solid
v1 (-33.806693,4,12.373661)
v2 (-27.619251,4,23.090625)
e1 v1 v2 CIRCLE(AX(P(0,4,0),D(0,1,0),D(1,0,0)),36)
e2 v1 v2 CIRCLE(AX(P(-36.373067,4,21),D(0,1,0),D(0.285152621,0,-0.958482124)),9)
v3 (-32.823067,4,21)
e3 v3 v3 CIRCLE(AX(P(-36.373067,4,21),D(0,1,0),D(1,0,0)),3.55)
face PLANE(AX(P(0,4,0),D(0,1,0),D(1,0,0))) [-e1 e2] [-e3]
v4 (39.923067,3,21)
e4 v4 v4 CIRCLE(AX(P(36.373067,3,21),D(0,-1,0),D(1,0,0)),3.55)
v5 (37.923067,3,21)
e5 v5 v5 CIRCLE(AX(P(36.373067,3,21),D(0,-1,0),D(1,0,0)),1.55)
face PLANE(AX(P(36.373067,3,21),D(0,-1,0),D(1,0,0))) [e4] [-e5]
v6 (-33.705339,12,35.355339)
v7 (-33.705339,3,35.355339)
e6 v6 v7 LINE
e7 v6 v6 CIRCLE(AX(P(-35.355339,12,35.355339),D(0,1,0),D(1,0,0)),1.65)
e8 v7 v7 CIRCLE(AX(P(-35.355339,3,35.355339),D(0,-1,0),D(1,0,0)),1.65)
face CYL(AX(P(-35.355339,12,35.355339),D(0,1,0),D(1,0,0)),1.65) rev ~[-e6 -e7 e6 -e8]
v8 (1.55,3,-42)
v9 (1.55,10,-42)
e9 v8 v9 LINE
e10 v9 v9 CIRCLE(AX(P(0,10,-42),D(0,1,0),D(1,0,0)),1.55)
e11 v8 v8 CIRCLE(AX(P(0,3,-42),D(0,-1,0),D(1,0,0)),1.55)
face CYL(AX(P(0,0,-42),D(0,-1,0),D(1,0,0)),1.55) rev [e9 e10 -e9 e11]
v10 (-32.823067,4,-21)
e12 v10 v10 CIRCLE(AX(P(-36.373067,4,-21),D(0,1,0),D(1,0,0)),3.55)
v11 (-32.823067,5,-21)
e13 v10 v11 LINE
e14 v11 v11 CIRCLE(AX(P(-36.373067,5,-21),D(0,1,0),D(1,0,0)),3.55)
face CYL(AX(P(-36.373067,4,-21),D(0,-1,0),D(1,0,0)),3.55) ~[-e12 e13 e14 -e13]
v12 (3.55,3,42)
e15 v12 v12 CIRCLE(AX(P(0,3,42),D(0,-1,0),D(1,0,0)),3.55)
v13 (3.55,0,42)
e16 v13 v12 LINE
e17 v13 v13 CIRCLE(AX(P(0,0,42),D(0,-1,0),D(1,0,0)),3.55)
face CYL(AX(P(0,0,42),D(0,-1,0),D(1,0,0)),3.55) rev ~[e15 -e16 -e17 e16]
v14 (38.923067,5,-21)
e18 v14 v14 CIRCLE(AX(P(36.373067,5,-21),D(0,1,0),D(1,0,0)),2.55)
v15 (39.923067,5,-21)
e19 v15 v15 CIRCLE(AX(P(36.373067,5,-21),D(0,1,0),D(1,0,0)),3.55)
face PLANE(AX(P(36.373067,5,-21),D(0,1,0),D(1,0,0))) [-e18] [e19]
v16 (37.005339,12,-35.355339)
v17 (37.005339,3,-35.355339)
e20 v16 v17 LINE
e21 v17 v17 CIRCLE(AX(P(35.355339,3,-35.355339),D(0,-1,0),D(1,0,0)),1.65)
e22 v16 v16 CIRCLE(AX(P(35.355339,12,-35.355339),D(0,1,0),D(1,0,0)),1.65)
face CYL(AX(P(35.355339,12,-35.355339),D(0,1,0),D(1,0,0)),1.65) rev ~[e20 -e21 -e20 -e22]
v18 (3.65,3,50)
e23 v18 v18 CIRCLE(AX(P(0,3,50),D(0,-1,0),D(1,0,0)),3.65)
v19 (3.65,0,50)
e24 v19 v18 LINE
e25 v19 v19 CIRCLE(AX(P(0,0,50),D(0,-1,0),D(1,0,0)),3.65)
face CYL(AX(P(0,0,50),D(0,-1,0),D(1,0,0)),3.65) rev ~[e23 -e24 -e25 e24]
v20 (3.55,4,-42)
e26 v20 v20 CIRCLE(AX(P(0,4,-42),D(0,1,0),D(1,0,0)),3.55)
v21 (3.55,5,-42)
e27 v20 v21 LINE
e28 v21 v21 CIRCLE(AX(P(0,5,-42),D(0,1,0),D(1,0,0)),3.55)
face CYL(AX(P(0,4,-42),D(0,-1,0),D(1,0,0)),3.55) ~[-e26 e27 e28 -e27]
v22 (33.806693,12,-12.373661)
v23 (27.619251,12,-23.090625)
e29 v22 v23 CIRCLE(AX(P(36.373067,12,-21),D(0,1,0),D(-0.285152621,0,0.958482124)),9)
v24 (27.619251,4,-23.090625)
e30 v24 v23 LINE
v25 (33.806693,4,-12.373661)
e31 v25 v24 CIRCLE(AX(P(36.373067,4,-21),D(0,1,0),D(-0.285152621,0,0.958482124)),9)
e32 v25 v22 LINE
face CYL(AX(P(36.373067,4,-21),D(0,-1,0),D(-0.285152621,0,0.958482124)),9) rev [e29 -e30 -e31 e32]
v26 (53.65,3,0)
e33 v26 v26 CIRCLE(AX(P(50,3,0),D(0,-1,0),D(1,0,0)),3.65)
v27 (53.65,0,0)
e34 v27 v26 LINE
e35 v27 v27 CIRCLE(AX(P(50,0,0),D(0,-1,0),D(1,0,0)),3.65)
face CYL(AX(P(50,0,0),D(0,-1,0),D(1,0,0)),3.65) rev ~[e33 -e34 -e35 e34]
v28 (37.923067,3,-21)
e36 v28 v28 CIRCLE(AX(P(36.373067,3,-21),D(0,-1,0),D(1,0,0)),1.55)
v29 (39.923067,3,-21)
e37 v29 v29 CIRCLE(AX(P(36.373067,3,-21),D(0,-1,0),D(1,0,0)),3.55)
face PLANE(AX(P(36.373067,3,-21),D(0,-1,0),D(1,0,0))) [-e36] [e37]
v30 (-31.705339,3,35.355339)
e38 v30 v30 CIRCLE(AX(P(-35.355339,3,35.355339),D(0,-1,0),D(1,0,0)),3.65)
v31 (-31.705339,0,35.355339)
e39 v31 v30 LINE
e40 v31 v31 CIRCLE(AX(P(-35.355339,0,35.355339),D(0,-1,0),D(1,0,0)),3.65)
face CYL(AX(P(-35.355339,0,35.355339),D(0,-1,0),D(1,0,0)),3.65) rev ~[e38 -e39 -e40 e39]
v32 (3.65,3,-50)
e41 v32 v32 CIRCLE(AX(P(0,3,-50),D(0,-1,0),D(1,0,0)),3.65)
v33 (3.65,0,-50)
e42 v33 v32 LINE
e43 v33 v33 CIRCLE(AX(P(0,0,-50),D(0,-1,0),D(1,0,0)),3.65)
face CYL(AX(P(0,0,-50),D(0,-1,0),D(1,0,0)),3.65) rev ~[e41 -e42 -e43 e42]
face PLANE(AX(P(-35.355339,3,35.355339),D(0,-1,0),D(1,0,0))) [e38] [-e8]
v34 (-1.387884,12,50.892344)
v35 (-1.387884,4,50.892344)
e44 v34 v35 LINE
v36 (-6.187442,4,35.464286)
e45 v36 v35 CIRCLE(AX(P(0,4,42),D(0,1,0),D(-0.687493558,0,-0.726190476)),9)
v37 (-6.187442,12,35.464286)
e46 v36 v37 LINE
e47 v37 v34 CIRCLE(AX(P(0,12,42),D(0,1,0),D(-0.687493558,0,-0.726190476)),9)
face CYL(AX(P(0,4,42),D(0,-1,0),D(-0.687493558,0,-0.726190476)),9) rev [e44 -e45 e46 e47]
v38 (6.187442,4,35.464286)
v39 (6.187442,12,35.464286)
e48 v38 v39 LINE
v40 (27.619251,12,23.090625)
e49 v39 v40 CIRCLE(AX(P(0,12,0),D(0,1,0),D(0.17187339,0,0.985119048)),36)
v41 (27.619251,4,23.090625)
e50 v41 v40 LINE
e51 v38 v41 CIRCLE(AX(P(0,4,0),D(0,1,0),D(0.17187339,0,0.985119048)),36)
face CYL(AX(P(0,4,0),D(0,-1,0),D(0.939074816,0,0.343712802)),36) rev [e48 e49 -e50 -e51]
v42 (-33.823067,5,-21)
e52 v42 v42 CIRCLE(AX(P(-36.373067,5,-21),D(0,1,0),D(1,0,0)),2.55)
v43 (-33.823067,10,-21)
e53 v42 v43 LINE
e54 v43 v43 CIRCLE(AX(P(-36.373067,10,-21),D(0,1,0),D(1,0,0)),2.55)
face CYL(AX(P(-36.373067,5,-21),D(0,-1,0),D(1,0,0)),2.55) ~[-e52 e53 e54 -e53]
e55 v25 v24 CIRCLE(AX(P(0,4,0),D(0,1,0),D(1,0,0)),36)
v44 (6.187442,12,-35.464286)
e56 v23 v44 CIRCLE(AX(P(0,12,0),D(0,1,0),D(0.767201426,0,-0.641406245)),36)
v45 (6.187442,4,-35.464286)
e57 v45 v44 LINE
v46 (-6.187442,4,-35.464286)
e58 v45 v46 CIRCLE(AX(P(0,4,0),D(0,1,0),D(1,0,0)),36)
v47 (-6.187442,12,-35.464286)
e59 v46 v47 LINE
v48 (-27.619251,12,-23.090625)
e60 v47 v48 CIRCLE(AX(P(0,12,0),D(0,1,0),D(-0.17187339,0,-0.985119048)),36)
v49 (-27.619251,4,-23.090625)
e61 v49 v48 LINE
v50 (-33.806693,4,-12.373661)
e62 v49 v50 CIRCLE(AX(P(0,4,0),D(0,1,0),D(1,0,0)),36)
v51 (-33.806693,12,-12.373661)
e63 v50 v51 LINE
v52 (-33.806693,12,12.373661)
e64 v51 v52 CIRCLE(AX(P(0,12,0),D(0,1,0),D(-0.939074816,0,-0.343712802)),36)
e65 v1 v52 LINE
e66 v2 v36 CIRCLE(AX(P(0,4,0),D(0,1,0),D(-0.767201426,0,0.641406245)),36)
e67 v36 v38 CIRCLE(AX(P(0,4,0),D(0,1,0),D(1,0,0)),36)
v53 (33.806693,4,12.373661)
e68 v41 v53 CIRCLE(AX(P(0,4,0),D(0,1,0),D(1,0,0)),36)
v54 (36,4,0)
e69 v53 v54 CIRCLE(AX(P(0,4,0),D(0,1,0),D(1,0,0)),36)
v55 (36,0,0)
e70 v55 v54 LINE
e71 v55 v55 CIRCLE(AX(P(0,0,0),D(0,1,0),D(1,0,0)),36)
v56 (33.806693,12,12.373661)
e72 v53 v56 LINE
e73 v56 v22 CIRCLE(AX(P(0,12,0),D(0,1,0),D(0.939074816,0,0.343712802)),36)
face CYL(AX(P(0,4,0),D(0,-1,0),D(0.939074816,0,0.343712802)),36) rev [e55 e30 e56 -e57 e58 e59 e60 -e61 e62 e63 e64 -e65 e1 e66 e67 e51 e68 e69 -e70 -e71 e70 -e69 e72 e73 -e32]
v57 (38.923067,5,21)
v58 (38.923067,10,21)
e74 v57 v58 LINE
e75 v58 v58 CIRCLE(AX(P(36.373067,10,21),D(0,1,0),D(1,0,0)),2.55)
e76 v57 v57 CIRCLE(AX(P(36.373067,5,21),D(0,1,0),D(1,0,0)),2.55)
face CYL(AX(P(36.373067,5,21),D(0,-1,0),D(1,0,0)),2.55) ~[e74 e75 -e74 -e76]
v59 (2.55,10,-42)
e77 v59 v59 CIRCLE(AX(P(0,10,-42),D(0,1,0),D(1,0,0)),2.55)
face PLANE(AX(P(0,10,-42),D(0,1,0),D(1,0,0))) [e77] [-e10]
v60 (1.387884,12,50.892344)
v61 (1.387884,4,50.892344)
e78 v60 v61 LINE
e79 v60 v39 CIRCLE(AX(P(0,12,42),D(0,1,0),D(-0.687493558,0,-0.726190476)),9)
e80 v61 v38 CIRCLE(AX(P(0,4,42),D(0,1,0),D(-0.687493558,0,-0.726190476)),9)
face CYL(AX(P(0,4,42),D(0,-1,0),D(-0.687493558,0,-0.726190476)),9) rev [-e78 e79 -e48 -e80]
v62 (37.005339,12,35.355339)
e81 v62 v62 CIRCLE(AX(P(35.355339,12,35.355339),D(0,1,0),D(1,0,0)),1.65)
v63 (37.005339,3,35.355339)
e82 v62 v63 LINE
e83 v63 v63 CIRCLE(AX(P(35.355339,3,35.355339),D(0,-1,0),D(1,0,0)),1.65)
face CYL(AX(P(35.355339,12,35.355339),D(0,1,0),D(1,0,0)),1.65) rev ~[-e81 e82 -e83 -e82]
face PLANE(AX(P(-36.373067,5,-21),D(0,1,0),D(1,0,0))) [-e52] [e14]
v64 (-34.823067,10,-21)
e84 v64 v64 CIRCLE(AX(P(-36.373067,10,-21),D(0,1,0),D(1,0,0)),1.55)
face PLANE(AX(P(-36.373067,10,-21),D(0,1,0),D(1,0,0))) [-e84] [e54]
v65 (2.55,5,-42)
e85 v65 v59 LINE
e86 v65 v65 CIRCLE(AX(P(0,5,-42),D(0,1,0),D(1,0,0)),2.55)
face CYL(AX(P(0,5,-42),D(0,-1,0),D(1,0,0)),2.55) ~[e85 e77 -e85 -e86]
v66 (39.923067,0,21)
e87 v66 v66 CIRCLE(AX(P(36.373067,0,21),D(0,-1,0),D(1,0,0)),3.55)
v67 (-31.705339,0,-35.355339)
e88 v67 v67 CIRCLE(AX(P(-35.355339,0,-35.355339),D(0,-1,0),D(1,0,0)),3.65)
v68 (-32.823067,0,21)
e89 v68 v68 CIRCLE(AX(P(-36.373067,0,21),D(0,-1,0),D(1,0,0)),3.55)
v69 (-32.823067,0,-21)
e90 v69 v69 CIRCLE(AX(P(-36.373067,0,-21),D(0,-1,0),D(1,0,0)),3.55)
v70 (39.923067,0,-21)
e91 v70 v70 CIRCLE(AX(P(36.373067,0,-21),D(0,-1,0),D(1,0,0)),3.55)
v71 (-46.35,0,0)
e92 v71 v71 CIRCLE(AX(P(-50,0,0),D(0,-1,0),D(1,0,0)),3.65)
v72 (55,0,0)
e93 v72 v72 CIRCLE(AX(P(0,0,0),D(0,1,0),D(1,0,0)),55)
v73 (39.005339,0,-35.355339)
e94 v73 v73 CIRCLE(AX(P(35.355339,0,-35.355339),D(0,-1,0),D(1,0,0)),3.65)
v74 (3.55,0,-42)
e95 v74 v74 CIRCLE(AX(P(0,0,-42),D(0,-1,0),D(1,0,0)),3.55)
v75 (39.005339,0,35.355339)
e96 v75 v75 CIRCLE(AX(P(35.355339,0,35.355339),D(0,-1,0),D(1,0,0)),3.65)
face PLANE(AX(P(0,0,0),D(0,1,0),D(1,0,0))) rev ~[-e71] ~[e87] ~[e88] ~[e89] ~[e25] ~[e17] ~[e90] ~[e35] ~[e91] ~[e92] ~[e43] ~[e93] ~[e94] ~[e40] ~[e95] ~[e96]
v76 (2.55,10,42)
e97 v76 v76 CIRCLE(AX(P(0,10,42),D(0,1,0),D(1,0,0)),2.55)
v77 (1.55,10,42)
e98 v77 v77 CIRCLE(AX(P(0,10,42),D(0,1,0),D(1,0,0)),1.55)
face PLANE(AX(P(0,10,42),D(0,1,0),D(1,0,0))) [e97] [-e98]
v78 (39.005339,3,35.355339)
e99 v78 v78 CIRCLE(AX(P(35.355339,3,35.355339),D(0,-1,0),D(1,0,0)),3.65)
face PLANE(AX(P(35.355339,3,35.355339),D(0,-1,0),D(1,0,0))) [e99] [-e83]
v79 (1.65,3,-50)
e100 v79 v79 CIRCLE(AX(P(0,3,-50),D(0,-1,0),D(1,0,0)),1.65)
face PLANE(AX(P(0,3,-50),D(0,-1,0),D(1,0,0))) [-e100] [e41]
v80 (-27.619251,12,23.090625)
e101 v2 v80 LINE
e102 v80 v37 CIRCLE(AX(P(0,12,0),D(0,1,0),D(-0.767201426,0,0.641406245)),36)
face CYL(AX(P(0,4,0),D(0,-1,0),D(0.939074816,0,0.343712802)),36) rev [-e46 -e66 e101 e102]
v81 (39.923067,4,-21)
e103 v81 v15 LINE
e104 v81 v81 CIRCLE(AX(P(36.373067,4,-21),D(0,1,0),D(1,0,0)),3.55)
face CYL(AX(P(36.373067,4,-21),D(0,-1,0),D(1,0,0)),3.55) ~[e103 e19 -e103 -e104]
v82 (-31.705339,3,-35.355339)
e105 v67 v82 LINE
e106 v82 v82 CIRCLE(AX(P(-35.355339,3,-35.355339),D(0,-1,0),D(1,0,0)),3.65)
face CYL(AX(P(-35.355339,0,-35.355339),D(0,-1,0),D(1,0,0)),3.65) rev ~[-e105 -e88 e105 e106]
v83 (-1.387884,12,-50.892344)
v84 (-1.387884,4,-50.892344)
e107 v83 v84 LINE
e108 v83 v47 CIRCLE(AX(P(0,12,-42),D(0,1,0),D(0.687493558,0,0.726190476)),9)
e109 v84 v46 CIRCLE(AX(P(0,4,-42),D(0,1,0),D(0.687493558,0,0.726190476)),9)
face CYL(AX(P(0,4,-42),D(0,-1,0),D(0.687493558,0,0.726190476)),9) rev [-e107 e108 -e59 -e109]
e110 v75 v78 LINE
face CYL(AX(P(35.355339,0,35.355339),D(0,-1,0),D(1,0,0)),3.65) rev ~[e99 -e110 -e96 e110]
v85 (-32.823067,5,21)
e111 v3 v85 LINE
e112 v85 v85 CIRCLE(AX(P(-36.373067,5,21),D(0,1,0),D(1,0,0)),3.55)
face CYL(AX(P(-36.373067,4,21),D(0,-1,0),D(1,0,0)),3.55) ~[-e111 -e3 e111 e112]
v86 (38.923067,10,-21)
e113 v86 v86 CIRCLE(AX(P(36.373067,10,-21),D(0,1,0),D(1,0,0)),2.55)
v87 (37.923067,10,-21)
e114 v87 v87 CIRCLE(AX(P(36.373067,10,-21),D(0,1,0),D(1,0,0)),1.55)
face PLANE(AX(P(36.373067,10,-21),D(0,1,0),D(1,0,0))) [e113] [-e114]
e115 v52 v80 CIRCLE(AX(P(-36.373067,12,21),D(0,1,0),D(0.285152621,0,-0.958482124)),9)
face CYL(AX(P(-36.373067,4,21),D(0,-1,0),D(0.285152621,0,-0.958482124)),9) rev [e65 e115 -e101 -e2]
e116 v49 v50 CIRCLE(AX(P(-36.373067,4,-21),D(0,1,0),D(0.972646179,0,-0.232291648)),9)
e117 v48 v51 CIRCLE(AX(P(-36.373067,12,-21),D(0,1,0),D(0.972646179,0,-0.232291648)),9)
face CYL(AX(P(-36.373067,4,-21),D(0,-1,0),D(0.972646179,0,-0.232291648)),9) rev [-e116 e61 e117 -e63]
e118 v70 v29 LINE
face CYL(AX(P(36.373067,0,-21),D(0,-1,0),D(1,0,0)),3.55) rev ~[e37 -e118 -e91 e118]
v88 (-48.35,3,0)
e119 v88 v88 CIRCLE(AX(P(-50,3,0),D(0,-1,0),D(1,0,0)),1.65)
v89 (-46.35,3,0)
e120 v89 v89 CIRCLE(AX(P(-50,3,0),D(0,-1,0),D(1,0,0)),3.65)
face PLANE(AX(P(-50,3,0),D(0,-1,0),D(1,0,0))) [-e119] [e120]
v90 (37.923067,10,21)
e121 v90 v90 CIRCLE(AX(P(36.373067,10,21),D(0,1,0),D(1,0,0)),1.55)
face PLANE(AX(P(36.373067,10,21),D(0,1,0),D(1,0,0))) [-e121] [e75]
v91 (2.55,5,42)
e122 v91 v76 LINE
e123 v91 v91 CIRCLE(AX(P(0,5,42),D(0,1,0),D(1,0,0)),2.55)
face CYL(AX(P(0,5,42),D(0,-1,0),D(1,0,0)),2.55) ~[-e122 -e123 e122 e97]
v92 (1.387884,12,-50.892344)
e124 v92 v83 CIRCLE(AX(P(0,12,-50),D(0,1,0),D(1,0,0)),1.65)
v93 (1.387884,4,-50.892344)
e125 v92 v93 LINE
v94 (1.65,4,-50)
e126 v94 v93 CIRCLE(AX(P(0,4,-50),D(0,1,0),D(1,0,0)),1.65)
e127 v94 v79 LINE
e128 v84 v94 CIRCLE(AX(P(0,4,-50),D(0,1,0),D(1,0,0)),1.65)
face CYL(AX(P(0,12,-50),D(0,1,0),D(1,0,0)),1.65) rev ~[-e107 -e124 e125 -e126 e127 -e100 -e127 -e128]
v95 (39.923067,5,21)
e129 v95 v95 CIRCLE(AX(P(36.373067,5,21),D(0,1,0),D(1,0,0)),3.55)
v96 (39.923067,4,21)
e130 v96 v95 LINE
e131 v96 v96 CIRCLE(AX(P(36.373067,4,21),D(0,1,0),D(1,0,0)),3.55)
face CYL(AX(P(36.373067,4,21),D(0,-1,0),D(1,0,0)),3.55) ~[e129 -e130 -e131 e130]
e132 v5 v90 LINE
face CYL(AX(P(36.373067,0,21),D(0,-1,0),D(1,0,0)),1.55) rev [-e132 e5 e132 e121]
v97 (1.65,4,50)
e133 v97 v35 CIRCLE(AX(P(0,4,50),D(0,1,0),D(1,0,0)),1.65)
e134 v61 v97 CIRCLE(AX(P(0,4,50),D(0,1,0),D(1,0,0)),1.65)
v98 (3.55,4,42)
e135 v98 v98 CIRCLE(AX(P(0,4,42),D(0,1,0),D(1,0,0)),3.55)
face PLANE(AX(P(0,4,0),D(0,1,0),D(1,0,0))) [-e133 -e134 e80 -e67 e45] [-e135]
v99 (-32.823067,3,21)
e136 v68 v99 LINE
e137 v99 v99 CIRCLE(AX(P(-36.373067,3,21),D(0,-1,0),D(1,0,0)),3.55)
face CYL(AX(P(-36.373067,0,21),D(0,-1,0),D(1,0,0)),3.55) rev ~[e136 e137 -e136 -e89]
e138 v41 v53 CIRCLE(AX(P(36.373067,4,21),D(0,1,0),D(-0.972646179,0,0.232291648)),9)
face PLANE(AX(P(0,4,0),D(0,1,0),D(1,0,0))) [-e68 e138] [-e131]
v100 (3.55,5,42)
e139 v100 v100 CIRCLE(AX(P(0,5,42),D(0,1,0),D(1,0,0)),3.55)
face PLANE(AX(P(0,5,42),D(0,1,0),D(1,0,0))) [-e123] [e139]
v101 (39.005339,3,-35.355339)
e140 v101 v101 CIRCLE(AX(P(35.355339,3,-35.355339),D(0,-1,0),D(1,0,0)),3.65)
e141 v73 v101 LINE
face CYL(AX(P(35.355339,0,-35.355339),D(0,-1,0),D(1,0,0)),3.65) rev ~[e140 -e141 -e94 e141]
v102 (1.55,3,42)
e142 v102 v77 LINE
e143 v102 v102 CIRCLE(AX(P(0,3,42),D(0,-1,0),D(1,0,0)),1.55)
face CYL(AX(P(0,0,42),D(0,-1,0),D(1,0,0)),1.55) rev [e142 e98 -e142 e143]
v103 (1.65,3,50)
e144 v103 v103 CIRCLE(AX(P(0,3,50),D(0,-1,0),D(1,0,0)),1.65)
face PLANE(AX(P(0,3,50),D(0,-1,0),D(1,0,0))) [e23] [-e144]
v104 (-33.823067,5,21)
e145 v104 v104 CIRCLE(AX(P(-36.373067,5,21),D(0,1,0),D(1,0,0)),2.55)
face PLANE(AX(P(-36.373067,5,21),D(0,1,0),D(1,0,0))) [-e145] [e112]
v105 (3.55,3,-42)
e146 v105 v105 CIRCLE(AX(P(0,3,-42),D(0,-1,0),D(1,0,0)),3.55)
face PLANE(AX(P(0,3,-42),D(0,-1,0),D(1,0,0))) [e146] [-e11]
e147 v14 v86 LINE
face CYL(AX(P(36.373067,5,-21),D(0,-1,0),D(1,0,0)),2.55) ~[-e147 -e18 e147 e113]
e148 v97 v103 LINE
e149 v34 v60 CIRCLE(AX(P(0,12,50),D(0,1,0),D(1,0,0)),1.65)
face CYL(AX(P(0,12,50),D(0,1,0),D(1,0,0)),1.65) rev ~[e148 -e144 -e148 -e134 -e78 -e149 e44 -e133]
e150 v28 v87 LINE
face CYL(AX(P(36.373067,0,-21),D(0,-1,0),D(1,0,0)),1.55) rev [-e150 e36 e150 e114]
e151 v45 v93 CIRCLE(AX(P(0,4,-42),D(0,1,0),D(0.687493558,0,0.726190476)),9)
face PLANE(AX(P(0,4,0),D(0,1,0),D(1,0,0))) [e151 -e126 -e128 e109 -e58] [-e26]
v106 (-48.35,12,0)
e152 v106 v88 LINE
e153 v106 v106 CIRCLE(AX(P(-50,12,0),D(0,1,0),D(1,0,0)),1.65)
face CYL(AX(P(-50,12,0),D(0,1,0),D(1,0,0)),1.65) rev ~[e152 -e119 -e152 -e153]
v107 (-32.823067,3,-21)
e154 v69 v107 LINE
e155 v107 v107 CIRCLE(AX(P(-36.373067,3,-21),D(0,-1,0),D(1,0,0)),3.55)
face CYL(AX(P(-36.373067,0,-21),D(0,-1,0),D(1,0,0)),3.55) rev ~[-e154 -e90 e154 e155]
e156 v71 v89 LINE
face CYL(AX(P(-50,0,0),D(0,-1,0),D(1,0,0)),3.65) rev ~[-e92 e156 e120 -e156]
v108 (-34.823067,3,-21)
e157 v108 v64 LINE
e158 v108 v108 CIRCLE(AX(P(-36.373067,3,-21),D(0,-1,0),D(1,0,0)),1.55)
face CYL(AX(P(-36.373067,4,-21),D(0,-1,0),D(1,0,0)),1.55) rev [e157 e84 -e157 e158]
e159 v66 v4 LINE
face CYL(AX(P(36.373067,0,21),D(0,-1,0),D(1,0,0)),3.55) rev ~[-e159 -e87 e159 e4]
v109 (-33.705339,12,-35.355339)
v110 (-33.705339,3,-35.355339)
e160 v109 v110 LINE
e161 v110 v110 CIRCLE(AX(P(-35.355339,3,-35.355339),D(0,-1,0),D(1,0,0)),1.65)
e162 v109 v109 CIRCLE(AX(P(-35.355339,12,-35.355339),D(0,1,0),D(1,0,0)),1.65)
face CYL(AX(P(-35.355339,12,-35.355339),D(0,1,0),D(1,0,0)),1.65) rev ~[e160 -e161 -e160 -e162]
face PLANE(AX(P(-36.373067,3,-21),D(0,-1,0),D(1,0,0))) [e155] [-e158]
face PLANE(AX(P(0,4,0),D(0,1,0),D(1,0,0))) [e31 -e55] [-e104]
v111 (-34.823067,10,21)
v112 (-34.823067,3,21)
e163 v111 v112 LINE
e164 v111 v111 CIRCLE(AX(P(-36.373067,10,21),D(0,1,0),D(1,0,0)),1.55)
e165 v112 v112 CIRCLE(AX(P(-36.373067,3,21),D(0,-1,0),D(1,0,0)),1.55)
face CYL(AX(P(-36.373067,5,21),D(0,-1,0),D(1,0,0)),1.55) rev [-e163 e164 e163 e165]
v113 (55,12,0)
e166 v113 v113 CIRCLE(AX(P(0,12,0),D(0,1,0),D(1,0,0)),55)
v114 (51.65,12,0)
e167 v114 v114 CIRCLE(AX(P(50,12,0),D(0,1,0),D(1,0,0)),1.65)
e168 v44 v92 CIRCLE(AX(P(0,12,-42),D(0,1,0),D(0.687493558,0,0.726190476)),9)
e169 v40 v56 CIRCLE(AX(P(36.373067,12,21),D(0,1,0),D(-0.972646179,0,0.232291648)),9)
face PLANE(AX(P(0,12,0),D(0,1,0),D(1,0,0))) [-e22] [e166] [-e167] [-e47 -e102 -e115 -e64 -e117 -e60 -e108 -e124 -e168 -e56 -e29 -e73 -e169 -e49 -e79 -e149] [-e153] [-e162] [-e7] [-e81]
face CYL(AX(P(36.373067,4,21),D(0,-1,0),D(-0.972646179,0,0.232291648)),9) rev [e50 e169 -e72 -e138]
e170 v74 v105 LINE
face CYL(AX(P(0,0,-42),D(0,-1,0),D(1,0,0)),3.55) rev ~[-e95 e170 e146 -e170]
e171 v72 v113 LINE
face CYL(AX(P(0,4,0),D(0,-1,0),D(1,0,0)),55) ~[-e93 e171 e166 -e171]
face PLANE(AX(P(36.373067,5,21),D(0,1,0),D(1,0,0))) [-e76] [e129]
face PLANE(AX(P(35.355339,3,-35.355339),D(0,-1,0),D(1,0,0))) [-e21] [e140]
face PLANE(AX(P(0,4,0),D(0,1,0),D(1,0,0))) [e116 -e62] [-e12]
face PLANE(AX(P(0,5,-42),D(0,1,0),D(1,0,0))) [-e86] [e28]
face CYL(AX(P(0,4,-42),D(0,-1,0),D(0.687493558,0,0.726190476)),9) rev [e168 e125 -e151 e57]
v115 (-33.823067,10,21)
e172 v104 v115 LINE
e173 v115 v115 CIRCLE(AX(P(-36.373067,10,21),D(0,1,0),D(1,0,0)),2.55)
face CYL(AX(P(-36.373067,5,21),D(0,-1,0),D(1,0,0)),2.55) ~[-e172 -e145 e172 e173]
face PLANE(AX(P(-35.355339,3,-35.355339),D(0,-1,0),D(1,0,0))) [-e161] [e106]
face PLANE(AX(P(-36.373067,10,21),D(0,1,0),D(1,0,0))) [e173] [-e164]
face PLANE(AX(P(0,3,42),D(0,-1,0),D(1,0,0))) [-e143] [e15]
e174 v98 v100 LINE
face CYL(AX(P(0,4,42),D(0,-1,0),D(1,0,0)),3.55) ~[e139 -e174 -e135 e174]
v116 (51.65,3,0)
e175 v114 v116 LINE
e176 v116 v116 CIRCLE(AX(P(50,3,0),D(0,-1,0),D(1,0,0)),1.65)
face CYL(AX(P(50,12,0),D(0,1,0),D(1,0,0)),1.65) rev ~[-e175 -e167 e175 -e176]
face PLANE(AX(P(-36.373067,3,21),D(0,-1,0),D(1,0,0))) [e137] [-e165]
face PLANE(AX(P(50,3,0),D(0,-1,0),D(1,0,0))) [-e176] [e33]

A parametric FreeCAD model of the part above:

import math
import FreeCAD as App
import Part
import Sketcher
from FreeCAD import Vector
Q = App.Units.Quantity

doc = App.newDocument("Part")
body = doc.addObject("PartDesign::Body", "Body")

sketch1 = body.newObject("Sketcher::SketchObject", "Sketch")
sketch1.AttachmentSupport = (doc.getObject("XZ_Plane"), [""])
sketch1.MapMode = "FlatFace"
sketch1.addGeometry(Part.Circle(Vector(0, 0, 0), Vector(0, 0, 1), 55), False)
sketch1.addGeometry(Part.Circle(Vector(-36.373067, 21, 0), Vector(0, 0, 1), 1.55), False)
sketch1.addGeometry(Part.Circle(Vector(0, 42, 0), Vector(0, 0, 1), 1.55), False)
sketch1.addGeometry(Part.Circle(Vector(36.373067, 21, 0), Vector(0, 0, 1), 1.55), False)
sketch1.addGeometry(Part.Circle(Vector(-36.373067, -21, 0), Vector(0, 0, 1), 1.55), False)
sketch1.addGeometry(Part.Circle(Vector(0, 0, 0), Vector(0, 0, 1), 36), False)
sketch1.addGeometry(Part.Circle(Vector(36.373067, -21, 0), Vector(0, 0, 1), 1.55), False)
sketch1.addGeometry(Part.Circle(Vector(0, -42, 0), Vector(0, 0, 1), 1.55), False)
sketch1.addConstraint(Sketcher.Constraint("Coincident", 0, 3, -1, 1))
sketch1.addConstraint(Sketcher.Constraint("Coincident", 5, 3, -1, 1))
sketch1.addConstraint(Sketcher.Constraint("Equal", 1, 2))
sketch1.addConstraint(Sketcher.Constraint("Equal", 2, 3))
sketch1.addConstraint(Sketcher.Constraint("Equal", 3, 4))
sketch1.addConstraint(Sketcher.Constraint("Equal", 4, 6))
sketch1.addConstraint(Sketcher.Constraint("Equal", 6, 7))
sketch1.addConstraint(Sketcher.Constraint("Symmetric", 3, 3, 4, 3, -1, 1))
sketch1.addConstraint(Sketcher.Constraint("Symmetric", 1, 3, 6, 3, -1, 1))
sketch1.addConstraint(Sketcher.Constraint("Symmetric", 2, 3, 7, 3, -1, 1))
sketch1.addConstraint(Sketcher.Constraint("Symmetric", 1, 3, 3, 3, -2))
sketch1.addConstraint(Sketcher.Constraint("PointOnObject", 2, 3, -2))
sketch1.addConstraint(Sketcher.Constraint("Diameter", 0, Q("110 mm")))
sketch1.addConstraint(Sketcher.Constraint("Diameter", 5, Q("72 mm")))
sketch1.addConstraint(Sketcher.Constraint("Diameter", 1, Q("3.1 mm")))
sketch1.addConstraint(Sketcher.Constraint("DistanceY", -1, 1, 1, 3, Q("21 mm")))
sketch1.addConstraint(Sketcher.Constraint("DistanceY", -1, 1, 2, 3, Q("42 mm")))
sketch1.addConstraint(Sketcher.Constraint("DistanceX", 1, 3, -1, 1, Q("36.373067 mm")))
pad1 = body.newObject("PartDesign::Pad", "Pad")
pad1.Profile = sketch1
pad1.Length = 4
pad1.Reversed = True

sketch2 = body.newObject("Sketcher::SketchObject", "Sketch001")
sketch2.AttachmentSupport = (doc.getObject("XZ_Plane"), [""])
sketch2.MapMode = "FlatFace"
sketch2.AttachmentOffset = App.Placement(Vector(0, 0, -4), App.Rotation())
sketch2.addGeometry(Part.Circle(Vector(-36.373067, -21, 0), Vector(0, 0, 1), 3.55), False)
sketch2.addGeometry(Part.Circle(Vector(-36.373067, -21, 0), Vector(0, 0, 1), 1.55), False)
sketch2.addGeometry(Part.Circle(Vector(0, 42, 0), Vector(0, 0, 1), 3.55), False)
sketch2.addGeometry(Part.Circle(Vector(0, 42, 0), Vector(0, 0, 1), 1.55), False)
sketch2.addGeometry(Part.Circle(Vector(36.373067, -21, 0), Vector(0, 0, 1), 3.55), False)
sketch2.addGeometry(Part.Circle(Vector(36.373067, -21, 0), Vector(0, 0, 1), 1.55), False)
sketch2.addGeometry(Part.Circle(Vector(0, -42, 0), Vector(0, 0, 1), 3.55), False)
sketch2.addGeometry(Part.Circle(Vector(0, -42, 0), Vector(0, 0, 1), 1.55), False)
sketch2.addGeometry(Part.Circle(Vector(36.373067, 21, 0), Vector(0, 0, 1), 3.55), False)
sketch2.addGeometry(Part.Circle(Vector(36.373067, 21, 0), Vector(0, 0, 1), 1.55), False)
sketch2.addGeometry(Part.Circle(Vector(-36.373067, 21, 0), Vector(0, 0, 1), 3.55), False)
sketch2.addGeometry(Part.Circle(Vector(-36.373067, 21, 0), Vector(0, 0, 1), 1.55), False)
sketch2.addConstraint(Sketcher.Constraint("Coincident", 1, 3, 0, 3))
sketch2.addConstraint(Sketcher.Constraint("Coincident", 3, 3, 2, 3))
sketch2.addConstraint(Sketcher.Constraint("Coincident", 5, 3, 4, 3))
sketch2.addConstraint(Sketcher.Constraint("Coincident", 7, 3, 6, 3))
sketch2.addConstraint(Sketcher.Constraint("Coincident", 9, 3, 8, 3))
sketch2.addConstraint(Sketcher.Constraint("Coincident", 11, 3, 10, 3))
sketch2.addConstraint(Sketcher.Constraint("Equal", 0, 2))
sketch2.addConstraint(Sketcher.Constraint("Equal", 1, 3))
sketch2.addConstraint(Sketcher.Constraint("Equal", 2, 4))
sketch2.addConstraint(Sketcher.Constraint("Equal", 3, 5))
sketch2.addConstraint(Sketcher.Constraint("Equal", 4, 6))
sketch2.addConstraint(Sketcher.Constraint("Equal", 5, 7))
sketch2.addConstraint(Sketcher.Constraint("Equal", 6, 8))
sketch2.addConstraint(Sketcher.Constraint("Equal", 7, 9))
sketch2.addConstraint(Sketcher.Constraint("Equal", 8, 10))
sketch2.addConstraint(Sketcher.Constraint("Equal", 9, 11))
sketch2.addConstraint(Sketcher.Constraint("Symmetric", 2, 3, 6, 3, -1, 1))
sketch2.addConstraint(Sketcher.Constraint("Symmetric", 0, 3, 8, 3, -1, 1))
sketch2.addConstraint(Sketcher.Constraint("Symmetric", 4, 3, 10, 3, -1, 1))
sketch2.addConstraint(Sketcher.Constraint("Symmetric", 0, 3, 4, 3, -2))
sketch2.addConstraint(Sketcher.Constraint("PointOnObject", 2, 3, -2))
sketch2.addConstraint(Sketcher.Constraint("Diameter", 0, Q("7.1 mm")))
sketch2.addConstraint(Sketcher.Constraint("Diameter", 1, Q("3.1 mm")))
sketch2.addConstraint(Sketcher.Constraint("DistanceY", 0, 3, -1, 1, Q("21 mm")))
sketch2.addConstraint(Sketcher.Constraint("DistanceY", -1, 1, 2, 3, Q("42 mm")))
sketch2.addConstraint(Sketcher.Constraint("DistanceX", 0, 3, -1, 1, Q("36.373067 mm")))
pad2 = body.newObject("PartDesign::Pad", "Pad001")
pad2.Profile = sketch2
pad2.Length = 1
pad2.Reversed = True

sketch3 = body.newObject("Sketcher::SketchObject", "Sketch002")
sketch3.AttachmentSupport = (doc.getObject("XZ_Plane"), [""])
sketch3.MapMode = "FlatFace"
sketch3.AttachmentOffset = App.Placement(Vector(0, 0, -5), App.Rotation())
sketch3.addGeometry(Part.Circle(Vector(-36.373067, 21, 0), Vector(0, 0, 1), 2.55), False)
sketch3.addGeometry(Part.Circle(Vector(-36.373067, 21, 0), Vector(0, 0, 1), 1.55), False)
sketch3.addGeometry(Part.Circle(Vector(0, 42, 0), Vector(0, 0, 1), 2.55), False)
sketch3.addGeometry(Part.Circle(Vector(0, 42, 0), Vector(0, 0, 1), 1.55), False)
sketch3.addGeometry(Part.Circle(Vector(36.373067, 21, 0), Vector(0, 0, 1), 2.55), False)
sketch3.addGeometry(Part.Circle(Vector(36.373067, 21, 0), Vector(0, 0, 1), 1.55), False)
sketch3.addGeometry(Part.Circle(Vector(36.373067, -21, 0), Vector(0, 0, 1), 2.55), False)
sketch3.addGeometry(Part.Circle(Vector(36.373067, -21, 0), Vector(0, 0, 1), 1.55), False)
sketch3.addGeometry(Part.Circle(Vector(0, -42, 0), Vector(0, 0, 1), 2.55), False)
sketch3.addGeometry(Part.Circle(Vector(0, -42, 0), Vector(0, 0, 1), 1.55), False)
sketch3.addGeometry(Part.Circle(Vector(-36.373067, -21, 0), Vector(0, 0, 1), 2.55), False)
sketch3.addGeometry(Part.Circle(Vector(-36.373067, -21, 0), Vector(0, 0, 1), 1.55), False)
sketch3.addConstraint(Sketcher.Constraint("Coincident", 1, 3, 0, 3))
sketch3.addConstraint(Sketcher.Constraint("Coincident", 3, 3, 2, 3))
sketch3.addConstraint(Sketcher.Constraint("Coincident", 5, 3, 4, 3))
sketch3.addConstraint(Sketcher.Constraint("Coincident", 7, 3, 6, 3))
sketch3.addConstraint(Sketcher.Constraint("Coincident", 9, 3, 8, 3))
sketch3.addConstraint(Sketcher.Constraint("Coincident", 11, 3, 10, 3))
sketch3.addConstraint(Sketcher.Constraint("Equal", 0, 2))
sketch3.addConstraint(Sketcher.Constraint("Equal", 1, 3))
sketch3.addConstraint(Sketcher.Constraint("Equal", 2, 4))
sketch3.addConstraint(Sketcher.Constraint("Equal", 3, 5))
sketch3.addConstraint(Sketcher.Constraint("Equal", 4, 6))
sketch3.addConstraint(Sketcher.Constraint("Equal", 5, 7))
sketch3.addConstraint(Sketcher.Constraint("Equal", 6, 8))
sketch3.addConstraint(Sketcher.Constraint("Equal", 7, 9))
sketch3.addConstraint(Sketcher.Constraint("Equal", 8, 10))
sketch3.addConstraint(Sketcher.Constraint("Equal", 9, 11))
sketch3.addConstraint(Sketcher.Constraint("Symmetric", 0, 3, 6, 3, -1, 1))
sketch3.addConstraint(Sketcher.Constraint("Symmetric", 2, 3, 8, 3, -1, 1))
sketch3.addConstraint(Sketcher.Constraint("Symmetric", 4, 3, 10, 3, -1, 1))
sketch3.addConstraint(Sketcher.Constraint("Symmetric", 0, 3, 4, 3, -2))
sketch3.addConstraint(Sketcher.Constraint("PointOnObject", 2, 3, -2))
sketch3.addConstraint(Sketcher.Constraint("Diameter", 0, Q("5.1 mm")))
sketch3.addConstraint(Sketcher.Constraint("Diameter", 1, Q("3.1 mm")))
sketch3.addConstraint(Sketcher.Constraint("DistanceY", -1, 1, 0, 3, Q("21 mm")))
sketch3.addConstraint(Sketcher.Constraint("DistanceY", -1, 1, 2, 3, Q("42 mm")))
sketch3.addConstraint(Sketcher.Constraint("DistanceX", 0, 3, -1, 1, Q("36.373067 mm")))
pad3 = body.newObject("PartDesign::Pad", "Pad002")
pad3.Profile = sketch3
pad3.Length = 5
pad3.Reversed = True

sketch4 = body.newObject("Sketcher::SketchObject", "Sketch003")
sketch4.AttachmentSupport = (doc.getObject("XZ_Plane"), [""])
sketch4.MapMode = "FlatFace"
sketch4.AttachmentOffset = App.Placement(Vector(0, 0, -4), App.Rotation())
sketch4.addGeometry(Part.Circle(Vector(0, 0, 0), Vector(0, 0, 1), 55), False)
sketch4.addGeometry(Part.ArcOfCircle(Part.Circle(Vector(0, -42, 0), Vector(0, 0, 1), 9), math.radians(133.432028), math.radians(406.567972)), False)
sketch4.addGeometry(Part.ArcOfCircle(Part.Circle(Vector(0, 0, 0), Vector(0, 0, 1), 36), math.radians(-80.10324), math.radians(-39.89676)), False)
sketch4.addGeometry(Part.ArcOfCircle(Part.Circle(Vector(36.373067, -21, 0), Vector(0, 0, 1), 9), math.radians(-166.567972), math.radians(106.567972)), False)
sketch4.addGeometry(Part.ArcOfCircle(Part.Circle(Vector(0, 0, 0), Vector(0, 0, 1), 36), math.radians(-20.10324), math.radians(20.10324)), False)
sketch4.addGeometry(Part.ArcOfCircle(Part.Circle(Vector(36.373067, 21, 0), Vector(0, 0, 1), 9), math.radians(-106.567972), math.radians(166.567972)), False)
sketch4.addGeometry(Part.ArcOfCircle(Part.Circle(Vector(0, 0, 0), Vector(0, 0, 1), 36), math.radians(39.89676), math.radians(80.10324)), False)
sketch4.addGeometry(Part.ArcOfCircle(Part.Circle(Vector(0, 42, 0), Vector(0, 0, 1), 9), math.radians(-46.567972), math.radians(226.567972)), False)
sketch4.addGeometry(Part.ArcOfCircle(Part.Circle(Vector(0, 0, 0), Vector(0, 0, 1), 36), math.radians(99.89676), math.radians(140.10324)), False)
sketch4.addGeometry(Part.ArcOfCircle(Part.Circle(Vector(-36.373067, 21, 0), Vector(0, 0, 1), 9), math.radians(13.432028), math.radians(286.567972)), False)
sketch4.addGeometry(Part.ArcOfCircle(Part.Circle(Vector(0, 0, 0), Vector(0, 0, 1), 36), math.radians(159.89676), math.radians(200.10324)), False)
sketch4.addGeometry(Part.ArcOfCircle(Part.Circle(Vector(-36.373067, -21, 0), Vector(0, 0, 1), 9), math.radians(73.432028), math.radians(346.567972)), False)
sketch4.addGeometry(Part.ArcOfCircle(Part.Circle(Vector(0, 0, 0), Vector(0, 0, 1), 36), math.radians(-140.10324), math.radians(-99.89676)), False)
sketch4.addConstraint(Sketcher.Constraint("Coincident", 1, 2, 2, 1))
sketch4.addConstraint(Sketcher.Constraint("Coincident", 2, 2, 3, 1))
sketch4.addConstraint(Sketcher.Constraint("Coincident", 3, 2, 4, 1))
sketch4.addConstraint(Sketcher.Constraint("Coincident", 4, 2, 5, 1))
sketch4.addConstraint(Sketcher.Constraint("Coincident", 5, 2, 6, 1))
sketch4.addConstraint(Sketcher.Constraint("Coincident", 6, 2, 7, 1))
sketch4.addConstraint(Sketcher.Constraint("Coincident", 7, 2, 8, 1))
sketch4.addConstraint(Sketcher.Constraint("Coincident", 8, 2, 9, 1))
sketch4.addConstraint(Sketcher.Constraint("Coincident", 9, 2, 10, 1))
sketch4.addConstraint(Sketcher.Constraint("Coincident", 10, 2, 11, 1))
sketch4.addConstraint(Sketcher.Constraint("Coincident", 11, 2, 12, 1))
sketch4.addConstraint(Sketcher.Constraint("Coincident", 12, 2, 1, 1))
sketch4.addConstraint(Sketcher.Constraint("Coincident", 0, 3, -1, 1))
sketch4.addConstraint(Sketcher.Constraint("Coincident", 2, 3, -1, 1))
sketch4.addConstraint(Sketcher.Constraint("Coincident", 4, 3, -1, 1))
sketch4.addConstraint(Sketcher.Constraint("Coincident", 6, 3, -1, 1))
sketch4.addConstraint(Sketcher.Constraint("Coincident", 8, 3, -1, 1))
sketch4.addConstraint(Sketcher.Constraint("Coincident", 10, 3, -1, 1))
sketch4.addConstraint(Sketcher.Constraint("Coincident", 12, 3, -1, 1))
sketch4.addConstraint(Sketcher.Constraint("Equal", 1, 3))
sketch4.addConstraint(Sketcher.Constraint("Equal", 2, 4))
sketch4.addConstraint(Sketcher.Constraint("Equal", 3, 5))
sketch4.addConstraint(Sketcher.Constraint("Equal", 4, 6))
sketch4.addConstraint(Sketcher.Constraint("Equal", 5, 7))
sketch4.addConstraint(Sketcher.Constraint("Equal", 6, 8))
sketch4.addConstraint(Sketcher.Constraint("Equal", 7, 9))
sketch4.addConstraint(Sketcher.Constraint("Equal", 8, 10))
sketch4.addConstraint(Sketcher.Constraint("Equal", 9, 11))
sketch4.addConstraint(Sketcher.Constraint("Equal", 10, 12))
sketch4.addConstraint(Sketcher.Constraint("Symmetric", 1, 3, 7, 3, -1, 1))
sketch4.addConstraint(Sketcher.Constraint("Symmetric", 3, 3, 9, 3, -1, 1))
sketch4.addConstraint(Sketcher.Constraint("Symmetric", 5, 3, 11, 3, -1, 1))
sketch4.addConstraint(Sketcher.Constraint("Symmetric", 5, 3, 9, 3, -2))
sketch4.addConstraint(Sketcher.Constraint("PointOnObject", 1, 3, -2))
sketch4.addConstraint(Sketcher.Constraint("Diameter", 0, Q("110 mm")))
sketch4.addConstraint(Sketcher.Constraint("Radius", 1, Q("9 mm")))
sketch4.addConstraint(Sketcher.Constraint("Radius", 2, Q("36 mm")))
sketch4.addConstraint(Sketcher.Constraint("DistanceY", 1, 3, -1, 1, Q("42 mm")))
sketch4.addConstraint(Sketcher.Constraint("DistanceY", 3, 3, -1, 1, Q("21 mm")))
sketch4.addConstraint(Sketcher.Constraint("DistanceX", -1, 1, 2, 2, Q("27.619251 mm")))
pad4 = body.newObject("PartDesign::Pad", "Pad003")
pad4.Profile = sketch4
pad4.Length = 8
pad4.Reversed = True

sketch5 = body.newObject("Sketcher::SketchObject", "Sketch004")
sketch5.AttachmentSupport = (doc.getObject("XZ_Plane"), [""])
sketch5.MapMode = "FlatFace"
sketch5.AttachmentOffset = App.Placement(Vector(0, 0, -12), App.Rotation())
sketch5.addGeometry(Part.Circle(Vector(0, -50, 0), Vector(0, 0, 1), 1.65), False)
sketch5.addGeometry(Part.Circle(Vector(35.355339, -35.355339, 0), Vector(0, 0, 1), 1.65), False)
sketch5.addGeometry(Part.Circle(Vector(50, 0, 0), Vector(0, 0, 1), 1.65), False)
sketch5.addGeometry(Part.Circle(Vector(35.355339, 35.355339, 0), Vector(0, 0, 1), 1.65), False)
sketch5.addGeometry(Part.Circle(Vector(0, 50, 0), Vector(0, 0, 1), 1.65), False)
sketch5.addGeometry(Part.Circle(Vector(-35.355339, 35.355339, 0), Vector(0, 0, 1), 1.65), False)
sketch5.addGeometry(Part.Circle(Vector(-50, 0, 0), Vector(0, 0, 1), 1.65), False)
sketch5.addGeometry(Part.Circle(Vector(-35.355339, -35.355339, 0), Vector(0, 0, 1), 1.65), False)
sketch5.addConstraint(Sketcher.Constraint("Equal", 0, 1))
sketch5.addConstraint(Sketcher.Constraint("Equal", 1, 2))
sketch5.addConstraint(Sketcher.Constraint("Equal", 2, 3))
sketch5.addConstraint(Sketcher.Constraint("Equal", 3, 4))
sketch5.addConstraint(Sketcher.Constraint("Equal", 4, 5))
sketch5.addConstraint(Sketcher.Constraint("Equal", 5, 6))
sketch5.addConstraint(Sketcher.Constraint("Equal", 6, 7))
sketch5.addConstraint(Sketcher.Constraint("Symmetric", 0, 3, 4, 3, -1, 1))
sketch5.addConstraint(Sketcher.Constraint("Symmetric", 1, 3, 5, 3, -1, 1))
sketch5.addConstraint(Sketcher.Constraint("Symmetric", 2, 3, 6, 3, -1, 1))
sketch5.addConstraint(Sketcher.Constraint("Symmetric", 3, 3, 7, 3, -1, 1))
sketch5.addConstraint(Sketcher.Constraint("Symmetric", 3, 3, 5, 3, -2))
sketch5.addConstraint(Sketcher.Constraint("PointOnObject", 0, 3, -2))
sketch5.addConstraint(Sketcher.Constraint("PointOnObject", 2, 3, -1))
sketch5.addConstraint(Sketcher.Constraint("Diameter", 0, Q("3.3 mm")))
sketch5.addConstraint(Sketcher.Constraint("DistanceY", 0, 3, -1, 1, Q("50 mm")))
sketch5.addConstraint(Sketcher.Constraint("DistanceX", -1, 1, 2, 3, Q("50 mm")))
sketch5.addConstraint(Sketcher.Constraint("DistanceX", -1, 1, 1, 3, Q("35.355339 mm")))
sketch5.addConstraint(Sketcher.Constraint("DistanceY", 1, 3, -1, 1, Q("35.355339 mm")))
pocket1 = body.newObject("PartDesign::Pocket", "Pocket")
pocket1.Profile = sketch5
pocket1.Type = "ThroughAll"
pocket1.Reversed = True

sketch6 = body.newObject("Sketcher::SketchObject", "Sketch005")
sketch6.AttachmentSupport = (doc.getObject("XZ_Plane"), [""])
sketch6.MapMode = "FlatFace"
sketch6.addGeometry(Part.Circle(Vector(-36.373067, -21, 0), Vector(0, 0, 1), 3.55), False)
sketch6.addGeometry(Part.Circle(Vector(-36.373067, -21, 0), Vector(0, 0, 1), 1.55), False)
sketch6.addGeometry(Part.Circle(Vector(-36.373067, 21, 0), Vector(0, 0, 1), 3.55), False)
sketch6.addGeometry(Part.Circle(Vector(-36.373067, 21, 0), Vector(0, 0, 1), 1.55), False)
sketch6.addGeometry(Part.Circle(Vector(0, 42, 0), Vector(0, 0, 1), 3.55), False)
sketch6.addGeometry(Part.Circle(Vector(0, 42, 0), Vector(0, 0, 1), 1.55), False)
sketch6.addGeometry(Part.Circle(Vector(36.373067, 21, 0), Vector(0, 0, 1), 3.55), False)
sketch6.addGeometry(Part.Circle(Vector(36.373067, 21, 0), Vector(0, 0, 1), 1.55), False)
sketch6.addGeometry(Part.Circle(Vector(36.373067, -21, 0), Vector(0, 0, 1), 3.55), False)
sketch6.addGeometry(Part.Circle(Vector(36.373067, -21, 0), Vector(0, 0, 1), 1.55), False)
sketch6.addGeometry(Part.Circle(Vector(0, -42, 0), Vector(0, 0, 1), 3.55), False)
sketch6.addGeometry(Part.Circle(Vector(0, -42, 0), Vector(0, 0, 1), 1.55), False)
sketch6.addGeometry(Part.Circle(Vector(-35.355339, -35.355339, 0), Vector(0, 0, 1), 3.65), False)
sketch6.addGeometry(Part.Circle(Vector(-35.355339, -35.355339, 0), Vector(0, 0, 1), 1.65), False)
sketch6.addGeometry(Part.Circle(Vector(-50, 0, 0), Vector(0, 0, 1), 3.65), False)
sketch6.addGeometry(Part.Circle(Vector(-50, 0, 0), Vector(0, 0, 1), 1.65), False)
sketch6.addGeometry(Part.Circle(Vector(-35.355339, 35.355339, 0), Vector(0, 0, 1), 3.65), False)
sketch6.addGeometry(Part.Circle(Vector(-35.355339, 35.355339, 0), Vector(0, 0, 1), 1.65), False)
sketch6.addGeometry(Part.Circle(Vector(0, 50, 0), Vector(0, 0, 1), 3.65), False)
sketch6.addGeometry(Part.Circle(Vector(0, 50, 0), Vector(0, 0, 1), 1.65), False)
sketch6.addGeometry(Part.Circle(Vector(35.355339, 35.355339, 0), Vector(0, 0, 1), 3.65), False)
sketch6.addGeometry(Part.Circle(Vector(35.355339, 35.355339, 0), Vector(0, 0, 1), 1.65), False)
sketch6.addGeometry(Part.Circle(Vector(50, 0, 0), Vector(0, 0, 1), 3.65), False)
sketch6.addGeometry(Part.Circle(Vector(50, 0, 0), Vector(0, 0, 1), 1.65), False)
sketch6.addGeometry(Part.Circle(Vector(35.355339, -35.355339, 0), Vector(0, 0, 1), 3.65), False)
sketch6.addGeometry(Part.Circle(Vector(35.355339, -35.355339, 0), Vector(0, 0, 1), 1.65), False)
sketch6.addGeometry(Part.Circle(Vector(0, -50, 0), Vector(0, 0, 1), 3.65), False)
sketch6.addGeometry(Part.Circle(Vector(0, -50, 0), Vector(0, 0, 1), 1.65), False)
sketch6.addConstraint(Sketcher.Constraint("Coincident", 1, 3, 0, 3))
sketch6.addConstraint(Sketcher.Constraint("Coincident", 3, 3, 2, 3))
sketch6.addConstraint(Sketcher.Constraint("Coincident", 5, 3, 4, 3))
sketch6.addConstraint(Sketcher.Constraint("Coincident", 7, 3, 6, 3))
sketch6.addConstraint(Sketcher.Constraint("Coincident", 9, 3, 8, 3))
sketch6.addConstraint(Sketcher.Constraint("Coincident", 11, 3, 10, 3))
sketch6.addConstraint(Sketcher.Constraint("Coincident", 13, 3, 12, 3))
sketch6.addConstraint(Sketcher.Constraint("Coincident", 15, 3, 14, 3))
sketch6.addConstraint(Sketcher.Constraint("Coincident", 17, 3, 16, 3))
sketch6.addConstraint(Sketcher.Constraint("Coincident", 19, 3, 18, 3))
sketch6.addConstraint(Sketcher.Constraint("Coincident", 21, 3, 20, 3))
sketch6.addConstraint(Sketcher.Constraint("Coincident", 23, 3, 22, 3))
sketch6.addConstraint(Sketcher.Constraint("Coincident", 25, 3, 24, 3))
sketch6.addConstraint(Sketcher.Constraint("Coincident", 27, 3, 26, 3))
sketch6.addConstraint(Sketcher.Constraint("Equal", 0, 2))
sketch6.addConstraint(Sketcher.Constraint("Equal", 1, 3))
sketch6.addConstraint(Sketcher.Constraint("Equal", 2, 4))
sketch6.addConstraint(Sketcher.Constraint("Equal", 3, 5))
sketch6.addConstraint(Sketcher.Constraint("Equal", 4, 6))
sketch6.addConstraint(Sketcher.Constraint("Equal", 5, 7))
sketch6.addConstraint(Sketcher.Constraint("Equal", 6, 8))
sketch6.addConstraint(Sketcher.Constraint("Equal", 7, 9))
sketch6.addConstraint(Sketcher.Constraint("Equal", 8, 10))
sketch6.addConstraint(Sketcher.Constraint("Equal", 9, 11))
sketch6.addConstraint(Sketcher.Constraint("Equal", 12, 14))
sketch6.addConstraint(Sketcher.Constraint("Equal", 13, 15))
sketch6.addConstraint(Sketcher.Constraint("Equal", 14, 16))
sketch6.addConstraint(Sketcher.Constraint("Equal", 15, 17))
sketch6.addConstraint(Sketcher.Constraint("Equal", 16, 18))
sketch6.addConstraint(Sketcher.Constraint("Equal", 17, 19))
sketch6.addConstraint(Sketcher.Constraint("Equal", 18, 20))
sketch6.addConstraint(Sketcher.Constraint("Equal", 19, 21))
sketch6.addConstraint(Sketcher.Constraint("Equal", 20, 22))
sketch6.addConstraint(Sketcher.Constraint("Equal", 21, 23))
sketch6.addConstraint(Sketcher.Constraint("Equal", 22, 24))
sketch6.addConstraint(Sketcher.Constraint("Equal", 23, 25))
sketch6.addConstraint(Sketcher.Constraint("Equal", 24, 26))
sketch6.addConstraint(Sketcher.Constraint("Equal", 25, 27))
sketch6.addConstraint(Sketcher.Constraint("Symmetric", 0, 3, 6, 3, -1, 1))
sketch6.addConstraint(Sketcher.Constraint("Symmetric", 2, 3, 8, 3, -1, 1))
sketch6.addConstraint(Sketcher.Constraint("Symmetric", 4, 3, 10, 3, -1, 1))
sketch6.addConstraint(Sketcher.Constraint("Symmetric", 12, 3, 20, 3, -1, 1))
sketch6.addConstraint(Sketcher.Constraint("Symmetric", 14, 3, 22, 3, -1, 1))
sketch6.addConstraint(Sketcher.Constraint("Symmetric", 16, 3, 24, 3, -1, 1))
sketch6.addConstraint(Sketcher.Constraint("Symmetric", 18, 3, 26, 3, -1, 1))
sketch6.addConstraint(Sketcher.Constraint("Symmetric", 2, 3, 6, 3, -2))
sketch6.addConstraint(Sketcher.Constraint("Symmetric", 16, 3, 20, 3, -2))
sketch6.addConstraint(Sketcher.Constraint("PointOnObject", 4, 3, -2))
sketch6.addConstraint(Sketcher.Constraint("PointOnObject", 14, 3, -1))
sketch6.addConstraint(Sketcher.Constraint("PointOnObject", 18, 3, -2))
sketch6.addConstraint(Sketcher.Constraint("Diameter", 0, Q("7.1 mm")))
sketch6.addConstraint(Sketcher.Constraint("Diameter", 1, Q("3.1 mm")))
sketch6.addConstraint(Sketcher.Constraint("Diameter", 12, Q("7.3 mm")))
sketch6.addConstraint(Sketcher.Constraint("Diameter", 13, Q("3.3 mm")))
sketch6.addConstraint(Sketcher.Constraint("DistanceY", 0, 3, -1, 1, Q("21 mm")))
sketch6.addConstraint(Sketcher.Constraint("DistanceY", -1, 1, 4, 3, Q("42 mm")))
sketch6.addConstraint(Sketcher.Constraint("DistanceX", 14, 3, -1, 1, Q("50 mm")))
sketch6.addConstraint(Sketcher.Constraint("DistanceY", -1, 1, 18, 3, Q("50 mm")))
sketch6.addConstraint(Sketcher.Constraint("DistanceX", 12, 3, -1, 1, Q("35.355339 mm")))
sketch6.addConstraint(Sketcher.Constraint("DistanceY", 12, 3, -1, 1, Q("35.355339 mm")))
sketch6.addConstraint(Sketcher.Constraint("DistanceX", 0, 3, -1, 1, Q("36.373067 mm")))
pocket2 = body.newObject("PartDesign::Pocket", "Pocket001")
pocket2.Profile = sketch6
pocket2.Length = 3

doc.recompute()
